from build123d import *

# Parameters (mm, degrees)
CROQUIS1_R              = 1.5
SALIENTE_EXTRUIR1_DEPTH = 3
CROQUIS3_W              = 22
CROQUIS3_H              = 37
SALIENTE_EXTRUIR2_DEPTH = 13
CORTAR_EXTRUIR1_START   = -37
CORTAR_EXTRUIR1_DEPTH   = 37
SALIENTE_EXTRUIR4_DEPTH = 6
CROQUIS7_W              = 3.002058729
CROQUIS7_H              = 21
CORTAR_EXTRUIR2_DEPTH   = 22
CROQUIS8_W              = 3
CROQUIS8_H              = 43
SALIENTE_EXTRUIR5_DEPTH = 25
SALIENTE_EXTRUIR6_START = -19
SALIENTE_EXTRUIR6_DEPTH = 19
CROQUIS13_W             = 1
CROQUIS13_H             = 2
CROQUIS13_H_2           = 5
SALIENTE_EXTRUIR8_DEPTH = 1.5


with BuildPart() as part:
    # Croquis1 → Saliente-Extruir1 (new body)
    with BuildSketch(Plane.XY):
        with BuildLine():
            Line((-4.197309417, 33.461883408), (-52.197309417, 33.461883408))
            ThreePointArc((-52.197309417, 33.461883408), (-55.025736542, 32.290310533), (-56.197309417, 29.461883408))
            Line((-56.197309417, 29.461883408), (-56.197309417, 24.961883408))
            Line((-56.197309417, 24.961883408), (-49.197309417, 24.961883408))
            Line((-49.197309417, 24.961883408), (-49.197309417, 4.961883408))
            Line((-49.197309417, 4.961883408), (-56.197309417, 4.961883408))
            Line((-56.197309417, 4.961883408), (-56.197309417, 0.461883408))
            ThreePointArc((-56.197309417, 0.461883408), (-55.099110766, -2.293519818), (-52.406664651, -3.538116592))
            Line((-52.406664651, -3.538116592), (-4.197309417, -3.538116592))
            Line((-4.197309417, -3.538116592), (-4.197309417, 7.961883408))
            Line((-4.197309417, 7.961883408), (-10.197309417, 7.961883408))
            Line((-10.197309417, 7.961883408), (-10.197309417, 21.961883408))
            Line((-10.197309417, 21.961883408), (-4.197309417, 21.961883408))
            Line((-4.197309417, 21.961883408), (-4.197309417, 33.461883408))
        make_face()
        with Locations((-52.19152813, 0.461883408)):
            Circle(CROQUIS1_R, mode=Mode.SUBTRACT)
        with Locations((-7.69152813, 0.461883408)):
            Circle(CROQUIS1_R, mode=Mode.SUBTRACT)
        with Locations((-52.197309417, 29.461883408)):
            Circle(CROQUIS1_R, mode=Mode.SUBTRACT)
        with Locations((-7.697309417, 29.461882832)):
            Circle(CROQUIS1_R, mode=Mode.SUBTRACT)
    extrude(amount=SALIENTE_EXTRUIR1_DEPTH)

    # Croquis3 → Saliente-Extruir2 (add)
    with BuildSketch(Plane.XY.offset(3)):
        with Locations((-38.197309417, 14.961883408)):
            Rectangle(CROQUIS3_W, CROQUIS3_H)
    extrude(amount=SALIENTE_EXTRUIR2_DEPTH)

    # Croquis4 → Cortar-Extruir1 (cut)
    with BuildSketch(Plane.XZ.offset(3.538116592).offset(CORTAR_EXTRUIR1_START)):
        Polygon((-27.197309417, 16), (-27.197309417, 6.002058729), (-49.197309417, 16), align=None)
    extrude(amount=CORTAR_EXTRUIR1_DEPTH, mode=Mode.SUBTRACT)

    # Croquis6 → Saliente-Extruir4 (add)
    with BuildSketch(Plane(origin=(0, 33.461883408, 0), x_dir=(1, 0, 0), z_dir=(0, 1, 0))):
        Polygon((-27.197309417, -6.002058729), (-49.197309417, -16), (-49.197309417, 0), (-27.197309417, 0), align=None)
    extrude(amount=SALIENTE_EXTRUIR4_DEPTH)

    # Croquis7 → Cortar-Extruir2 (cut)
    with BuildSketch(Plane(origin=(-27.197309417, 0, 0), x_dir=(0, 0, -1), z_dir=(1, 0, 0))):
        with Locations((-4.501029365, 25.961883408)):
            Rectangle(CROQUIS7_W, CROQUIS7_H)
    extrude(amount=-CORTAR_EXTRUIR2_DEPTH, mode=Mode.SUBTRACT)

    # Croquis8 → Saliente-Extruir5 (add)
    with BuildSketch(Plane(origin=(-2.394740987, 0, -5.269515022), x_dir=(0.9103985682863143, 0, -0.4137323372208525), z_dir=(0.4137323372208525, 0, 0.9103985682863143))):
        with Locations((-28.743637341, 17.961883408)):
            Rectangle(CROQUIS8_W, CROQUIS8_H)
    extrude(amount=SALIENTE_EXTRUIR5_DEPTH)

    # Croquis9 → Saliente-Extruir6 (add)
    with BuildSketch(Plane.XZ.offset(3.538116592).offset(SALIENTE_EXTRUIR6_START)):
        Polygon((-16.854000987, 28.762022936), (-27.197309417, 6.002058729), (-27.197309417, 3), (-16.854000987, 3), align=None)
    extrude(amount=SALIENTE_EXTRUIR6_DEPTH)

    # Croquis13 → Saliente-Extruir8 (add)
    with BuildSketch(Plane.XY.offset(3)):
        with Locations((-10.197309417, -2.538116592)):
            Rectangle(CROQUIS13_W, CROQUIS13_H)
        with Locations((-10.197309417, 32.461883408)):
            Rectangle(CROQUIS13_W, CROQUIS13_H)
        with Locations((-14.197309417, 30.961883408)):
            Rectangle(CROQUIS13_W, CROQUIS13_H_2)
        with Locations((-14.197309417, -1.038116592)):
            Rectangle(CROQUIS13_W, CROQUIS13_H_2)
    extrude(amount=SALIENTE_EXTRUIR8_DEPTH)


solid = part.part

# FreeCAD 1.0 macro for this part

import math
import FreeCAD as App
import Part
import Sketcher
from FreeCAD import Vector
Q = App.Units.Quantity

doc = App.newDocument("Part")
body = doc.addObject("PartDesign::Body", "Body")

sketch1 = doc.addObject("Sketcher::SketchObject", "Sketch")
body.addObject(sketch1)
sketch1.AttachmentSupport = (doc.XY_Plane, [""])
sketch1.MapMode = "FlatFace"
sketch1.addGeometry([
    Part.LineSegment(Vector(-4.197309, 33.461883, 0), Vector(-52.197309, 33.461883, 0)),
    Part.ArcOfCircle(Part.Circle(Vector(-52.197309, 29.461883, 0), Vector(0, 0, 1), 4), math.radians(90), math.radians(180)),
    Part.LineSegment(Vector(-56.197309, 29.461883, 0), Vector(-56.197309, 24.961883, 0)),
    Part.LineSegment(Vector(-56.197309, 24.961883, 0), Vector(-49.197309, 24.961883, 0)),
    Part.LineSegment(Vector(-49.197309, 24.961883, 0), Vector(-49.197309, 4.961883, 0)),
    Part.LineSegment(Vector(-49.197309, 4.961883, 0), Vector(-56.197309, 4.961883, 0)),
    Part.LineSegment(Vector(-56.197309, 4.961883, 0), Vector(-56.197309, 0.461883, 0)),
    Part.ArcOfCircle(Part.Circle(Vector(-52.191528, 0.461883, 0), Vector(0, 0, 1), 4.005781), math.radians(180), math.radians(266.921363)),
    Part.LineSegment(Vector(-52.406665, -3.538117, 0), Vector(-4.197309, -3.538117, 0)),
    Part.LineSegment(Vector(-4.197309, -3.538117, 0), Vector(-4.197309, 7.961883, 0)),
    Part.LineSegment(Vector(-4.197309, 7.961883, 0), Vector(-10.197309, 7.961883, 0)),
    Part.LineSegment(Vector(-10.197309, 7.961883, 0), Vector(-10.197309, 21.961883, 0)),
    Part.LineSegment(Vector(-10.197309, 21.961883, 0), Vector(-4.197309, 21.961883, 0)),
    Part.LineSegment(Vector(-4.197309, 21.961883, 0), Vector(-4.197309, 33.461883, 0)),
    Part.Circle(Vector(-52.191528, 0.461883, 0), Vector(0, 0, 1), 1.5),
    Part.Circle(Vector(-7.691528, 0.461883, 0), Vector(0, 0, 1), 1.5),
    Part.Circle(Vector(-52.197309, 29.461883, 0), Vector(0, 0, 1), 1.5),
    Part.Circle(Vector(-7.697309, 29.461883, 0), Vector(0, 0, 1), 1.5),
], False)
sketch1.addConstraint([
    Sketcher.Constraint("Tangent", 0, 2, 1, 1),
    Sketcher.Constraint("Tangent", 1, 2, 2, 1),
    Sketcher.Constraint("Coincident", 2, 2, 3, 1),
    Sketcher.Constraint("Coincident", 3, 2, 4, 1),
    Sketcher.Constraint("Coincident", 4, 2, 5, 1),
    Sketcher.Constraint("Coincident", 5, 2, 6, 1),
    Sketcher.Constraint("Tangent", 6, 2, 7, 1),
    Sketcher.Constraint("Coincident", 7, 2, 8, 1),
    Sketcher.Constraint("Coincident", 8, 2, 9, 1),
    Sketcher.Constraint("Coincident", 9, 2, 10, 1),
    Sketcher.Constraint("Coincident", 10, 2, 11, 1),
    Sketcher.Constraint("Coincident", 11, 2, 12, 1),
    Sketcher.Constraint("Coincident", 12, 2, 13, 1),
    Sketcher.Constraint("Coincident", 13, 2, 0, 1),
    Sketcher.Constraint("Horizontal", 0),
    Sketcher.Constraint("Vertical", 2),
    Sketcher.Constraint("Horizontal", 3),
    Sketcher.Constraint("Vertical", 4),
    Sketcher.Constraint("Horizontal", 5),
    Sketcher.Constraint("Vertical", 6),
    Sketcher.Constraint("Horizontal", 8),
    Sketcher.Constraint("Vertical", 9),
    Sketcher.Constraint("Horizontal", 10),
    Sketcher.Constraint("Vertical", 11),
    Sketcher.Constraint("Horizontal", 12),
    Sketcher.Constraint("Vertical", 13),
    Sketcher.Constraint("Coincident", 14, 3, 7, 3),
    Sketcher.Constraint("Coincident", 16, 3, 1, 3),
    Sketcher.Constraint("Equal", 14, 15),
    Sketcher.Constraint("Equal", 15, 16),
    Sketcher.Constraint("Equal", 16, 17),
    Sketcher.Constraint("Horizontal", 14, 3, 15, 3),
    Sketcher.Constraint("Horizontal", 16, 3, 17, 3),
    Sketcher.Constraint("Vertical", 2, 2, 5, 2),
    Sketcher.Constraint("Vertical", 9, 2, 12, 2),
    Sketcher.Constraint("Equal", 2, 6),
    Sketcher.Constraint("Equal", 9, 13),
    Sketcher.Constraint("Diameter", 14, Q("3 mm")),
    Sketcher.Constraint("Radius", 1, Q("4 mm")),
    Sketcher.Constraint("DistanceX", 0, 2, 0, 1, Q("48 mm")),
    Sketcher.Constraint("DistanceX", 3, 1, 3, 2, Q("7 mm")),
    Sketcher.Constraint("DistanceX", 10, 2, 10, 1, Q("6 mm")),
    Sketcher.Constraint("DistanceY", 4, 2, 4, 1, Q("20 mm")),
    Sketcher.Constraint("DistanceY", 11, 1, 11, 2, Q("14 mm")),
    Sketcher.Constraint("DistanceY", 2, 2, 2, 1, Q("4.5 mm")),
    Sketcher.Constraint("DistanceY", 9, 1, 9, 2, Q("11.5 mm")),
    Sketcher.Constraint("DistanceX", 7, 3, 15, 3, Q("44.5 mm")),
    Sketcher.Constraint("DistanceX", 16, 3, 17, 3, Q("44.5 mm")),
    Sketcher.Constraint("Radius", 7, Q("4.005781 mm")),
    Sketcher.Constraint("DistanceX", 1, 3, -1, 1, Q("52.197309 mm")),
    Sketcher.Constraint("DistanceY", -1, 1, 1, 3, Q("29.461883 mm")),
])
pad1 = doc.addObject("PartDesign::Pad", "Pad")
body.addObject(pad1)
pad1.Profile = sketch1
pad1.Length = 3

sketch2 = doc.addObject("Sketcher::SketchObject", "Sketch001")
body.addObject(sketch2)
sketch2.AttachmentSupport = (doc.XY_Plane, [""])
sketch2.MapMode = "FlatFace"
sketch2.AttachmentOffset = App.Placement(Vector(0, 0, 3), App.Rotation())
sketch2.addGeometry([
    Part.LineSegment(Vector(-49.197309, 33.461883, 0), Vector(-49.197309, -3.538117, 0)),
    Part.LineSegment(Vector(-49.197309, -3.538117, 0), Vector(-27.197309, -3.538117, 0)),
    Part.LineSegment(Vector(-27.197309, -3.538117, 0), Vector(-27.197309, 33.461883, 0)),
    Part.LineSegment(Vector(-27.197309, 33.461883, 0), Vector(-49.197309, 33.461883, 0)),
], False)
sketch2.addConstraint([
    Sketcher.Constraint("Coincident", 0, 2, 1, 1),
    Sketcher.Constraint("Coincident", 1, 2, 2, 1),
    Sketcher.Constraint("Coincident", 2, 2, 3, 1),
    Sketcher.Constraint("Coincident", 3, 2, 0, 1),
    Sketcher.Constraint("Vertical", 0),
    Sketcher.Constraint("Horizontal", 1),
    Sketcher.Constraint("Vertical", 2),
    Sketcher.Constraint("Horizontal", 3),
    Sketcher.Constraint("DistanceX", 1, 1, 1, 2, Q("22 mm")),
    Sketcher.Constraint("DistanceY", 0, 2, 0, 1, Q("37 mm")),
    Sketcher.Constraint("DistanceX", 0, 2, -1, 1, Q("49.197309 mm")),
    Sketcher.Constraint("DistanceY", 0, 2, -1, 1, Q("3.538117 mm")),
])
pad2 = doc.addObject("PartDesign::Pad", "Pad001")
body.addObject(pad2)
pad2.Profile = sketch2
pad2.Length = 13

sketch3 = doc.addObject("Sketcher::SketchObject", "Sketch002")
body.addObject(sketch3)
sketch3.AttachmentSupport = (doc.XZ_Plane, [""])
sketch3.MapMode = "FlatFace"
sketch3.AttachmentOffset = App.Placement(Vector(0, 0, -33.461883), App.Rotation())
sketch3.addGeometry([
    Part.LineSegment(Vector(-27.197309, 6.002059, 0), Vector(-27.197309, 16, 0)),
    Part.LineSegment(Vector(-27.197309, 16, 0), Vector(-49.197309, 16, 0)),
    Part.LineSegment(Vector(-49.197309, 16, 0), Vector(-27.197309, 6.002059, 0)),
], False)
sketch3.addConstraint([
    Sketcher.Constraint("Coincident", 0, 2, 1, 1),
    Sketcher.Constraint("Coincident", 1, 2, 2, 1),
    Sketcher.Constraint("Coincident", 2, 2, 0, 1),
    Sketcher.Constraint("Vertical", 0),
    Sketcher.Constraint("Horizontal", 1),
    Sketcher.Constraint("DistanceX", 1, 2, 1, 1, Q("22 mm")),
    Sketcher.Constraint("DistanceY", -1, 1, 0, 2, Q("16 mm")),
    Sketcher.Constraint("DistanceY", 0, 1, 0, 2, Q("9.997941 mm")),
    Sketcher.Constraint("DistanceX", 0, 2, -1, 1, Q("27.197309 mm")),
])
pocket1 = doc.addObject("PartDesign::Pocket", "Pocket")
body.addObject(pocket1)
pocket1.Profile = sketch3
pocket1.Length = 37
pocket1.Reversed = True

sketch4 = doc.addObject("Sketcher::SketchObject", "Sketch003")
body.addObject(sketch4)
sketch4.AttachmentSupport = (doc.XZ_Plane, [""])
sketch4.MapMode = "FlatFace"
sketch4.AttachmentOffset = App.Placement(Vector(0, 0, -33.461883), App.Rotation())
sketch4.addGeometry([
    Part.LineSegment(Vector(-49.197309, 16, 0), Vector(-27.197309, 6.002059, 0)),
    Part.LineSegment(Vector(-27.197309, 6.002059, 0), Vector(-27.197309, 0, 0)),
    Part.LineSegment(Vector(-27.197309, 0, 0), Vector(-49.197309, 0, 0)),
    Part.LineSegment(Vector(-49.197309, 0, 0), Vector(-49.197309, 16, 0)),
], False)
sketch4.addConstraint([
    Sketcher.Constraint("Coincident", 0, 2, 1, 1),
    Sketcher.Constraint("Coincident", 1, 2, 2, 1),
    Sketcher.Constraint("Coincident", 2, 2, 3, 1),
    Sketcher.Constraint("Coincident", 3, 2, 0, 1),
    Sketcher.Constraint("Vertical", 1),
    Sketcher.Constraint("Horizontal", 2),
    Sketcher.Constraint("Vertical", 3),
    Sketcher.Constraint("PointOnObject", 1, 2, -1),
    Sketcher.Constraint("DistanceX", 2, 2, 2, 1, Q("22 mm")),
    Sketcher.Constraint("DistanceY", 3, 1, 3, 2, Q("16 mm")),
    Sketcher.Constraint("DistanceY", 1, 2, 1, 1, Q("6.002059 mm")),
    Sketcher.Constraint("DistanceX", 0, 2, -1, 1, Q("27.197309 mm")),
])
pad3 = doc.addObject("PartDesign::Pad", "Pad002")
body.addObject(pad3)
pad3.Profile = sketch4
pad3.Length = 6
pad3.Reversed = True

sketch5 = doc.addObject("Sketcher::SketchObject", "Sketch004")
body.addObject(sketch5)
sketch5.AttachmentSupport = (doc.YZ_Plane, [""])
sketch5.MapMode = "FlatFace"
sketch5.AttachmentOffset = App.Placement(Vector(0, 0, -27.197309), App.Rotation())
sketch5.addGeometry([
    Part.LineSegment(Vector(36.461883, 6.002059, 0), Vector(15.461883, 6.002059, 0)),
    Part.LineSegment(Vector(15.461883, 6.002059, 0), Vector(15.461883, 3, 0)),
    Part.LineSegment(Vector(15.461883, 3, 0), Vector(36.461883, 3, 0)),
    Part.LineSegment(Vector(36.461883, 3, 0), Vector(36.461883, 6.002059, 0)),
], False)
sketch5.addConstraint([
    Sketcher.Constraint("Coincident", 0, 2, 1, 1),
    Sketcher.Constraint("Coincident", 1, 2, 2, 1),
    Sketcher.Constraint("Coincident", 2, 2, 3, 1),
    Sketcher.Constraint("Coincident", 3, 2, 0, 1),
    Sketcher.Constraint("Horizontal", 0),
    Sketcher.Constraint("Vertical", 1),
    Sketcher.Constraint("Horizontal", 2),
    Sketcher.Constraint("Vertical", 3),
    Sketcher.Constraint("DistanceX", 0, 2, 0, 1, Q("21 mm")),
    Sketcher.Constraint("DistanceY", -1, 1, 1, 2, Q("3 mm")),
    Sketcher.Constraint("DistanceY", 1, 2, 1, 1, Q("3.002059 mm")),
    Sketcher.Constraint("DistanceX", -1, 1, 0, 2, Q("15.461883 mm")),
])
pocket2 = doc.addObject("PartDesign::Pocket", "Pocket001")
body.addObject(pocket2)
pocket2.Profile = sketch5
pocket2.Length = 22

sketch6 = doc.addObject("Sketcher::SketchObject", "Sketch005")
body.addObject(sketch6)
sketch6.Placement = App.Placement(Vector(-2.394741, 0, -5.269515), App.Rotation(Vector(0.910398568, 0, -0.413732337), Vector(0, 0.999999999, 0), Vector(0.413732337, 0, 0.910398568), "ZXY"))
sketch6.addGeometry([
    Part.LineSegment(Vector(-30.243637, 39.461883, 0), Vector(-30.243637, -3.538117, 0)),
    Part.LineSegment(Vector(-30.243637, -3.538117, 0), Vector(-27.243637, -3.538117, 0)),
    Part.LineSegment(Vector(-27.243637, -3.538117, 0), Vector(-27.243637, 39.461883, 0)),
    Part.LineSegment(Vector(-27.243637, 39.461883, 0), Vector(-30.243637, 39.461883, 0)),
], False)
sketch6.addConstraint([
    Sketcher.Constraint("Coincident", 0, 2, 1, 1),
    Sketcher.Constraint("Coincident", 1, 2, 2, 1),
    Sketcher.Constraint("Coincident", 2, 2, 3, 1),
    Sketcher.Constraint("Coincident", 3, 2, 0, 1),
    Sketcher.Constraint("Vertical", 0),
    Sketcher.Constraint("Horizontal", 1),
    Sketcher.Constraint("Vertical", 2),
    Sketcher.Constraint("Horizontal", 3),
    Sketcher.Constraint("DistanceX", 1, 1, 1, 2, Q("3 mm")),
    Sketcher.Constraint("DistanceY", 0, 2, 0, 1, Q("43 mm")),
    Sketcher.Constraint("DistanceX", 0, 2, -1, 1, Q("30.243637 mm")),
    Sketcher.Constraint("DistanceY", 0, 2, -1, 1, Q("3.538117 mm")),
])
pad4 = doc.addObject("PartDesign::Pad", "Pad003")
body.addObject(pad4)
pad4.Profile = sketch6
pad4.Length = 25

sketch7 = doc.addObject("Sketcher::SketchObject", "Sketch006")
body.addObject(sketch7)
sketch7.AttachmentSupport = (doc.XZ_Plane, [""])
sketch7.MapMode = "FlatFace"
sketch7.AttachmentOffset = App.Placement(Vector(0, 0, -15.461883), App.Rotation())
sketch7.addGeometry([
    Part.LineSegment(Vector(-16.854001, 28.762023, 0), Vector(-27.197309, 6.002059, 0)),
    Part.LineSegment(Vector(-27.197309, 6.002059, 0), Vector(-27.197309, 3, 0)),
    Part.LineSegment(Vector(-27.197309, 3, 0), Vector(-16.854001, 3, 0)),
    Part.LineSegment(Vector(-16.854001, 3, 0), Vector(-16.854001, 28.762023, 0)),
], False)
sketch7.addConstraint([
    Sketcher.Constraint("Coincident", 0, 2, 1, 1),
    Sketcher.Constraint("Coincident", 1, 2, 2, 1),
    Sketcher.Constraint("Coincident", 2, 2, 3, 1),
    Sketcher.Constraint("Coincident", 3, 2, 0, 1),
    Sketcher.Constraint("Vertical", 1),
    Sketcher.Constraint("Horizontal", 2),
    Sketcher.Constraint("Vertical", 3),
    Sketcher.Constraint("Distance", 0, Q("25 mm")),
    Sketcher.Constraint("DistanceY", -1, 1, 1, 2, Q("3 mm")),
    Sketcher.Constraint("DistanceX", 2, 2, -1, 1, Q("16.854001 mm")),
    Sketcher.Constraint("DistanceX", 2, 1, 2, 2, Q("10.343308 mm")),
    Sketcher.Constraint("DistanceY", 1, 2, 1, 1, Q("3.002059 mm")),
])
pad5 = doc.addObject("PartDesign::Pad", "Pad004")
body.addObject(pad5)
pad5.Profile = sketch7
pad5.Length = 19

sketch8 = doc.addObject("Sketcher::SketchObject", "Sketch007")
body.addObject(sketch8)
sketch8.AttachmentSupport = (doc.XY_Plane, [""])
sketch8.MapMode = "FlatFace"
sketch8.AttachmentOffset = App.Placement(Vector(0, 0, 3), App.Rotation())
sketch8.addGeometry([
    Part.LineSegment(Vector(-10.697309, -1.538117, 0), Vector(-10.697309, -3.538117, 0)),
    Part.LineSegment(Vector(-10.697309, -3.538117, 0), Vector(-9.697309, -3.538117, 0)),
    Part.LineSegment(Vector(-9.697309, -3.538117, 0), Vector(-9.697309, -1.538117, 0)),
    Part.LineSegment(Vector(-9.697309, -1.538117, 0), Vector(-10.697309, -1.538117, 0)),
    Part.LineSegment(Vector(-10.697309, 33.461883, 0), Vector(-10.697309, 31.461883, 0)),
    Part.LineSegment(Vector(-10.697309, 31.461883, 0), Vector(-9.697309, 31.461883, 0)),
    Part.LineSegment(Vector(-9.697309, 31.461883, 0), Vector(-9.697309, 33.461883, 0)),
    Part.LineSegment(Vector(-9.697309, 33.461883, 0), Vector(-10.697309, 33.461883, 0)),
    Part.LineSegment(Vector(-14.697309, 33.461883, 0), Vector(-14.697309, 28.461883, 0)),
    Part.LineSegment(Vector(-14.697309, 28.461883, 0), Vector(-13.697309, 28.461883, 0)),
    Part.LineSegment(Vector(-13.697309, 28.461883, 0), Vector(-13.697309, 33.461883, 0)),
    Part.LineSegment(Vector(-13.697309, 33.461883, 0), Vector(-14.697309, 33.461883, 0)),
    Part.LineSegment(Vector(-14.697309, 1.461883, 0), Vector(-14.697309, -3.538117, 0)),
    Part.LineSegment(Vector(-14.697309, -3.538117, 0), Vector(-13.697309, -3.538117, 0)),
    Part.LineSegment(Vector(-13.697309, -3.538117, 0), Vector(-13.697309, 1.461883, 0)),
    Part.LineSegment(Vector(-13.697309, 1.461883, 0), Vector(-14.697309, 1.461883, 0)),
], False)
sketch8.addConstraint([
    Sketcher.Constraint("Coincident", 0, 2, 1, 1),
    Sketcher.Constraint("Coincident", 1, 2, 2, 1),
    Sketcher.Constraint("Coincident", 2, 2, 3, 1),
    Sketcher.Constraint("Coincident", 3, 2, 0, 1),
    Sketcher.Constraint("Coincident", 4, 2, 5, 1),
    Sketcher.Constraint("Coincident", 5, 2, 6, 1),
    Sketcher.Constraint("Coincident", 6, 2, 7, 1),
    Sketcher.Constraint("Coincident", 7, 2, 4, 1),
    Sketcher.Constraint("Coincident", 8, 2, 9, 1),
    Sketcher.Constraint("Coincident", 9, 2, 10, 1),
    Sketcher.Constraint("Coincident", 10, 2, 11, 1),
    Sketcher.Constraint("Coincident", 11, 2, 8, 1),
    Sketcher.Constraint("Coincident", 12, 2, 13, 1),
    Sketcher.Constraint("Coincident", 13, 2, 14, 1),
    Sketcher.Constraint("Coincident", 14, 2, 15, 1),
    Sketcher.Constraint("Coincident", 15, 2, 12, 1),
    Sketcher.Constraint("Vertical", 0),
    Sketcher.Constraint("Horizontal", 1),
    Sketcher.Constraint("Vertical", 2),
    Sketcher.Constraint("Horizontal", 3),
    Sketcher.Constraint("Vertical", 4),
    Sketcher.Constraint("Horizontal", 5),
    Sketcher.Constraint("Vertical", 6),
    Sketcher.Constraint("Horizontal", 7),
    Sketcher.Constraint("Vertical", 8),
    Sketcher.Constraint("Horizontal", 9),
    Sketcher.Constraint("Vertical", 10),
    Sketcher.Constraint("Horizontal", 11),
    Sketcher.Constraint("Vertical", 12),
    Sketcher.Constraint("Horizontal", 13),
    Sketcher.Constraint("Vertical", 14),
    Sketcher.Constraint("Horizontal", 15),
    Sketcher.Constraint("Horizontal", 7, 2, 10, 2),
    Sketcher.Constraint("Horizontal", 1, 2, 12, 2),
    Sketcher.Constraint("Vertical", 3, 2, 4, 2),
    Sketcher.Constraint("Vertical", 2, 2, 5, 2),
    Sketcher.Constraint("Vertical", 11, 2, 12, 2),
    Sketcher.Constraint("Vertical", 10, 2, 13, 2),
    Sketcher.Constraint("Equal", 7, 9),
    Sketcher.Constraint("Equal", 2, 4),
    Sketcher.Constraint("Equal", 10, 12),
    Sketcher.Constraint("DistanceX", 1, 1, 1, 2, Q("1 mm")),
    Sketcher.Constraint("DistanceY", 0, 2, 0, 1, Q("2 mm")),
    Sketcher.Constraint("DistanceY", 8, 2, 8, 1, Q("5 mm")),
    Sketcher.Constraint("DistanceY", 3, 2, 4, 2, Q("33 mm")),
    Sketcher.Constraint("DistanceX", 8, 2, 4, 2, Q("4 mm")),
    Sketcher.Constraint("DistanceX", 0, 2, -1, 1, Q("10.697309 mm")),
    Sketcher.Constraint("DistanceY", 0, 2, -1, 1, Q("3.538117 mm")),
])
pad6 = doc.addObject("PartDesign::Pad", "Pad005")
body.addObject(pad6)
pad6.Profile = sketch8
pad6.Length = 1.5

doc.recompute()
